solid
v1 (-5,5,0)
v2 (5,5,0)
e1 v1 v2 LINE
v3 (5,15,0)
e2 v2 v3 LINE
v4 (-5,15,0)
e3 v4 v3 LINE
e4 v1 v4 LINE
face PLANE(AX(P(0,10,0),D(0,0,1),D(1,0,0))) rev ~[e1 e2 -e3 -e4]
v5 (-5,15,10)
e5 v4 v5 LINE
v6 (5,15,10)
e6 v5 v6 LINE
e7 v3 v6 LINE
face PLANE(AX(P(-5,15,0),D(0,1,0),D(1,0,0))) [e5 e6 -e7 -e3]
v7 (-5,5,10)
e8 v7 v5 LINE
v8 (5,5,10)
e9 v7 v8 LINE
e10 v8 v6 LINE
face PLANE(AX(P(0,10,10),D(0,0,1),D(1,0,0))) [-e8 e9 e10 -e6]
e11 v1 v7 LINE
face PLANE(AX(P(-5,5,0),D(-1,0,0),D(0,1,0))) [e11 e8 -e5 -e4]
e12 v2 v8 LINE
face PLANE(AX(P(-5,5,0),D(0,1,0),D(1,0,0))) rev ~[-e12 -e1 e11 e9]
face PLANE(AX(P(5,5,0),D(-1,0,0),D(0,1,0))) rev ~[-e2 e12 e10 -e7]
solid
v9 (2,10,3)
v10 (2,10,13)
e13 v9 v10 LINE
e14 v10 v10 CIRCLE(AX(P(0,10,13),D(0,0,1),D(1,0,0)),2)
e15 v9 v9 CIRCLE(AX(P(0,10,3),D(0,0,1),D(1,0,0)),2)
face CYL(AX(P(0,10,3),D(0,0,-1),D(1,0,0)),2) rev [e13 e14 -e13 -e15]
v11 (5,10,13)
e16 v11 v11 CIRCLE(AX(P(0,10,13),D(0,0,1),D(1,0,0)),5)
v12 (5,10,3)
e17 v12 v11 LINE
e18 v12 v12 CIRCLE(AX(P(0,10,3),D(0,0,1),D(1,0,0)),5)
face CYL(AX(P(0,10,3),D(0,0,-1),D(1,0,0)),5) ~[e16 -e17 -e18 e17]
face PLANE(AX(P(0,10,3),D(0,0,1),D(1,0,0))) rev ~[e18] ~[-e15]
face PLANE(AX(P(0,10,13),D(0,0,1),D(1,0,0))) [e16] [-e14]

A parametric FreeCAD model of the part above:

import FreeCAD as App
import Part
import Sketcher
Q = App.Units.Quantity


def add_polygon(sketch, points):
    """Adds a closed chain of lines whose ends are joined by coincident constraints."""
    first, n = sketch.GeometryCount, len(points)
    for a, b in zip(points, points[1:] + points[:1]):
        sketch.addGeometry(Part.LineSegment(App.Vector(*a, 0), App.Vector(*b, 0)), False)
    for i in range(n):
        sketch.addConstraint(Sketcher.Constraint("Coincident", first + i, 2, first + (i + 1) % n, 1))

doc = App.newDocument("Part")
body = doc.addObject("PartDesign::Body", "Body")

sketch1 = body.newObject("Sketcher::SketchObject", "Sketch")
sketch1.AttachmentSupport = (doc.getObject("XY_Plane"), [""])
sketch1.MapMode = "FlatFace"
add_polygon(sketch1, [(-5, 15), (-5, 5), (5, 5), (5, 15)])
sketch1.addConstraint(Sketcher.Constraint("Vertical", 0))
sketch1.addConstraint(Sketcher.Constraint("Horizontal", 1))
sketch1.addConstraint(Sketcher.Constraint("Vertical", 2))
sketch1.addConstraint(Sketcher.Constraint("Horizontal", 3))
sketch1.addConstraint(Sketcher.Constraint("Equal", 3, 0))
sketch1.addConstraint(Sketcher.Constraint("DistanceX", 1, 1, 1, 2, Q("10 mm")))
sketch1.addConstraint(Sketcher.Constraint("DistanceX", 0, 2, -1, 1, Q("5 mm")))
sketch1.addConstraint(Sketcher.Constraint("DistanceY", -1, 1, 0, 2, Q("5 mm")))
pad1 = body.newObject("PartDesign::Pad", "Pad")
pad1.Profile = sketch1
pad1.Length = 10
body2 = doc.addObject("PartDesign::Body", "Body001")

sketch2 = body2.newObject("Sketcher::SketchObject", "Sketch001")
sketch2.AttachmentSupport = (doc.getObject("XY_Plane001"), [""])
sketch2.MapMode = "FlatFace"
sketch2.AttachmentOffset = App.Placement(App.Vector(0, 0, 3), App.Rotation())
sketch2.addGeometry(Part.Circle(App.Vector(0, 10, 0), App.Vector(0, 0, 1), 5), False)
sketch2.addGeometry(Part.Circle(App.Vector(0, 10, 0), App.Vector(0, 0, 1), 2), False)
sketch2.addConstraint(Sketcher.Constraint("Coincident", 1, 3, 0, 3))
sketch2.addConstraint(Sketcher.Constraint("PointOnObject", 0, 3, -2))
sketch2.addConstraint(Sketcher.Constraint("Diameter", 0, Q("10 mm")))
sketch2.addConstraint(Sketcher.Constraint("Diameter", 1, Q("4 mm")))
sketch2.addConstraint(Sketcher.Constraint("DistanceY", -1, 1, 0, 3, Q("10 mm")))
pad2 = body2.newObject("PartDesign::Pad", "Pad001")
pad2.Profile = sketch2
pad2.Length = 10

doc.recompute()
